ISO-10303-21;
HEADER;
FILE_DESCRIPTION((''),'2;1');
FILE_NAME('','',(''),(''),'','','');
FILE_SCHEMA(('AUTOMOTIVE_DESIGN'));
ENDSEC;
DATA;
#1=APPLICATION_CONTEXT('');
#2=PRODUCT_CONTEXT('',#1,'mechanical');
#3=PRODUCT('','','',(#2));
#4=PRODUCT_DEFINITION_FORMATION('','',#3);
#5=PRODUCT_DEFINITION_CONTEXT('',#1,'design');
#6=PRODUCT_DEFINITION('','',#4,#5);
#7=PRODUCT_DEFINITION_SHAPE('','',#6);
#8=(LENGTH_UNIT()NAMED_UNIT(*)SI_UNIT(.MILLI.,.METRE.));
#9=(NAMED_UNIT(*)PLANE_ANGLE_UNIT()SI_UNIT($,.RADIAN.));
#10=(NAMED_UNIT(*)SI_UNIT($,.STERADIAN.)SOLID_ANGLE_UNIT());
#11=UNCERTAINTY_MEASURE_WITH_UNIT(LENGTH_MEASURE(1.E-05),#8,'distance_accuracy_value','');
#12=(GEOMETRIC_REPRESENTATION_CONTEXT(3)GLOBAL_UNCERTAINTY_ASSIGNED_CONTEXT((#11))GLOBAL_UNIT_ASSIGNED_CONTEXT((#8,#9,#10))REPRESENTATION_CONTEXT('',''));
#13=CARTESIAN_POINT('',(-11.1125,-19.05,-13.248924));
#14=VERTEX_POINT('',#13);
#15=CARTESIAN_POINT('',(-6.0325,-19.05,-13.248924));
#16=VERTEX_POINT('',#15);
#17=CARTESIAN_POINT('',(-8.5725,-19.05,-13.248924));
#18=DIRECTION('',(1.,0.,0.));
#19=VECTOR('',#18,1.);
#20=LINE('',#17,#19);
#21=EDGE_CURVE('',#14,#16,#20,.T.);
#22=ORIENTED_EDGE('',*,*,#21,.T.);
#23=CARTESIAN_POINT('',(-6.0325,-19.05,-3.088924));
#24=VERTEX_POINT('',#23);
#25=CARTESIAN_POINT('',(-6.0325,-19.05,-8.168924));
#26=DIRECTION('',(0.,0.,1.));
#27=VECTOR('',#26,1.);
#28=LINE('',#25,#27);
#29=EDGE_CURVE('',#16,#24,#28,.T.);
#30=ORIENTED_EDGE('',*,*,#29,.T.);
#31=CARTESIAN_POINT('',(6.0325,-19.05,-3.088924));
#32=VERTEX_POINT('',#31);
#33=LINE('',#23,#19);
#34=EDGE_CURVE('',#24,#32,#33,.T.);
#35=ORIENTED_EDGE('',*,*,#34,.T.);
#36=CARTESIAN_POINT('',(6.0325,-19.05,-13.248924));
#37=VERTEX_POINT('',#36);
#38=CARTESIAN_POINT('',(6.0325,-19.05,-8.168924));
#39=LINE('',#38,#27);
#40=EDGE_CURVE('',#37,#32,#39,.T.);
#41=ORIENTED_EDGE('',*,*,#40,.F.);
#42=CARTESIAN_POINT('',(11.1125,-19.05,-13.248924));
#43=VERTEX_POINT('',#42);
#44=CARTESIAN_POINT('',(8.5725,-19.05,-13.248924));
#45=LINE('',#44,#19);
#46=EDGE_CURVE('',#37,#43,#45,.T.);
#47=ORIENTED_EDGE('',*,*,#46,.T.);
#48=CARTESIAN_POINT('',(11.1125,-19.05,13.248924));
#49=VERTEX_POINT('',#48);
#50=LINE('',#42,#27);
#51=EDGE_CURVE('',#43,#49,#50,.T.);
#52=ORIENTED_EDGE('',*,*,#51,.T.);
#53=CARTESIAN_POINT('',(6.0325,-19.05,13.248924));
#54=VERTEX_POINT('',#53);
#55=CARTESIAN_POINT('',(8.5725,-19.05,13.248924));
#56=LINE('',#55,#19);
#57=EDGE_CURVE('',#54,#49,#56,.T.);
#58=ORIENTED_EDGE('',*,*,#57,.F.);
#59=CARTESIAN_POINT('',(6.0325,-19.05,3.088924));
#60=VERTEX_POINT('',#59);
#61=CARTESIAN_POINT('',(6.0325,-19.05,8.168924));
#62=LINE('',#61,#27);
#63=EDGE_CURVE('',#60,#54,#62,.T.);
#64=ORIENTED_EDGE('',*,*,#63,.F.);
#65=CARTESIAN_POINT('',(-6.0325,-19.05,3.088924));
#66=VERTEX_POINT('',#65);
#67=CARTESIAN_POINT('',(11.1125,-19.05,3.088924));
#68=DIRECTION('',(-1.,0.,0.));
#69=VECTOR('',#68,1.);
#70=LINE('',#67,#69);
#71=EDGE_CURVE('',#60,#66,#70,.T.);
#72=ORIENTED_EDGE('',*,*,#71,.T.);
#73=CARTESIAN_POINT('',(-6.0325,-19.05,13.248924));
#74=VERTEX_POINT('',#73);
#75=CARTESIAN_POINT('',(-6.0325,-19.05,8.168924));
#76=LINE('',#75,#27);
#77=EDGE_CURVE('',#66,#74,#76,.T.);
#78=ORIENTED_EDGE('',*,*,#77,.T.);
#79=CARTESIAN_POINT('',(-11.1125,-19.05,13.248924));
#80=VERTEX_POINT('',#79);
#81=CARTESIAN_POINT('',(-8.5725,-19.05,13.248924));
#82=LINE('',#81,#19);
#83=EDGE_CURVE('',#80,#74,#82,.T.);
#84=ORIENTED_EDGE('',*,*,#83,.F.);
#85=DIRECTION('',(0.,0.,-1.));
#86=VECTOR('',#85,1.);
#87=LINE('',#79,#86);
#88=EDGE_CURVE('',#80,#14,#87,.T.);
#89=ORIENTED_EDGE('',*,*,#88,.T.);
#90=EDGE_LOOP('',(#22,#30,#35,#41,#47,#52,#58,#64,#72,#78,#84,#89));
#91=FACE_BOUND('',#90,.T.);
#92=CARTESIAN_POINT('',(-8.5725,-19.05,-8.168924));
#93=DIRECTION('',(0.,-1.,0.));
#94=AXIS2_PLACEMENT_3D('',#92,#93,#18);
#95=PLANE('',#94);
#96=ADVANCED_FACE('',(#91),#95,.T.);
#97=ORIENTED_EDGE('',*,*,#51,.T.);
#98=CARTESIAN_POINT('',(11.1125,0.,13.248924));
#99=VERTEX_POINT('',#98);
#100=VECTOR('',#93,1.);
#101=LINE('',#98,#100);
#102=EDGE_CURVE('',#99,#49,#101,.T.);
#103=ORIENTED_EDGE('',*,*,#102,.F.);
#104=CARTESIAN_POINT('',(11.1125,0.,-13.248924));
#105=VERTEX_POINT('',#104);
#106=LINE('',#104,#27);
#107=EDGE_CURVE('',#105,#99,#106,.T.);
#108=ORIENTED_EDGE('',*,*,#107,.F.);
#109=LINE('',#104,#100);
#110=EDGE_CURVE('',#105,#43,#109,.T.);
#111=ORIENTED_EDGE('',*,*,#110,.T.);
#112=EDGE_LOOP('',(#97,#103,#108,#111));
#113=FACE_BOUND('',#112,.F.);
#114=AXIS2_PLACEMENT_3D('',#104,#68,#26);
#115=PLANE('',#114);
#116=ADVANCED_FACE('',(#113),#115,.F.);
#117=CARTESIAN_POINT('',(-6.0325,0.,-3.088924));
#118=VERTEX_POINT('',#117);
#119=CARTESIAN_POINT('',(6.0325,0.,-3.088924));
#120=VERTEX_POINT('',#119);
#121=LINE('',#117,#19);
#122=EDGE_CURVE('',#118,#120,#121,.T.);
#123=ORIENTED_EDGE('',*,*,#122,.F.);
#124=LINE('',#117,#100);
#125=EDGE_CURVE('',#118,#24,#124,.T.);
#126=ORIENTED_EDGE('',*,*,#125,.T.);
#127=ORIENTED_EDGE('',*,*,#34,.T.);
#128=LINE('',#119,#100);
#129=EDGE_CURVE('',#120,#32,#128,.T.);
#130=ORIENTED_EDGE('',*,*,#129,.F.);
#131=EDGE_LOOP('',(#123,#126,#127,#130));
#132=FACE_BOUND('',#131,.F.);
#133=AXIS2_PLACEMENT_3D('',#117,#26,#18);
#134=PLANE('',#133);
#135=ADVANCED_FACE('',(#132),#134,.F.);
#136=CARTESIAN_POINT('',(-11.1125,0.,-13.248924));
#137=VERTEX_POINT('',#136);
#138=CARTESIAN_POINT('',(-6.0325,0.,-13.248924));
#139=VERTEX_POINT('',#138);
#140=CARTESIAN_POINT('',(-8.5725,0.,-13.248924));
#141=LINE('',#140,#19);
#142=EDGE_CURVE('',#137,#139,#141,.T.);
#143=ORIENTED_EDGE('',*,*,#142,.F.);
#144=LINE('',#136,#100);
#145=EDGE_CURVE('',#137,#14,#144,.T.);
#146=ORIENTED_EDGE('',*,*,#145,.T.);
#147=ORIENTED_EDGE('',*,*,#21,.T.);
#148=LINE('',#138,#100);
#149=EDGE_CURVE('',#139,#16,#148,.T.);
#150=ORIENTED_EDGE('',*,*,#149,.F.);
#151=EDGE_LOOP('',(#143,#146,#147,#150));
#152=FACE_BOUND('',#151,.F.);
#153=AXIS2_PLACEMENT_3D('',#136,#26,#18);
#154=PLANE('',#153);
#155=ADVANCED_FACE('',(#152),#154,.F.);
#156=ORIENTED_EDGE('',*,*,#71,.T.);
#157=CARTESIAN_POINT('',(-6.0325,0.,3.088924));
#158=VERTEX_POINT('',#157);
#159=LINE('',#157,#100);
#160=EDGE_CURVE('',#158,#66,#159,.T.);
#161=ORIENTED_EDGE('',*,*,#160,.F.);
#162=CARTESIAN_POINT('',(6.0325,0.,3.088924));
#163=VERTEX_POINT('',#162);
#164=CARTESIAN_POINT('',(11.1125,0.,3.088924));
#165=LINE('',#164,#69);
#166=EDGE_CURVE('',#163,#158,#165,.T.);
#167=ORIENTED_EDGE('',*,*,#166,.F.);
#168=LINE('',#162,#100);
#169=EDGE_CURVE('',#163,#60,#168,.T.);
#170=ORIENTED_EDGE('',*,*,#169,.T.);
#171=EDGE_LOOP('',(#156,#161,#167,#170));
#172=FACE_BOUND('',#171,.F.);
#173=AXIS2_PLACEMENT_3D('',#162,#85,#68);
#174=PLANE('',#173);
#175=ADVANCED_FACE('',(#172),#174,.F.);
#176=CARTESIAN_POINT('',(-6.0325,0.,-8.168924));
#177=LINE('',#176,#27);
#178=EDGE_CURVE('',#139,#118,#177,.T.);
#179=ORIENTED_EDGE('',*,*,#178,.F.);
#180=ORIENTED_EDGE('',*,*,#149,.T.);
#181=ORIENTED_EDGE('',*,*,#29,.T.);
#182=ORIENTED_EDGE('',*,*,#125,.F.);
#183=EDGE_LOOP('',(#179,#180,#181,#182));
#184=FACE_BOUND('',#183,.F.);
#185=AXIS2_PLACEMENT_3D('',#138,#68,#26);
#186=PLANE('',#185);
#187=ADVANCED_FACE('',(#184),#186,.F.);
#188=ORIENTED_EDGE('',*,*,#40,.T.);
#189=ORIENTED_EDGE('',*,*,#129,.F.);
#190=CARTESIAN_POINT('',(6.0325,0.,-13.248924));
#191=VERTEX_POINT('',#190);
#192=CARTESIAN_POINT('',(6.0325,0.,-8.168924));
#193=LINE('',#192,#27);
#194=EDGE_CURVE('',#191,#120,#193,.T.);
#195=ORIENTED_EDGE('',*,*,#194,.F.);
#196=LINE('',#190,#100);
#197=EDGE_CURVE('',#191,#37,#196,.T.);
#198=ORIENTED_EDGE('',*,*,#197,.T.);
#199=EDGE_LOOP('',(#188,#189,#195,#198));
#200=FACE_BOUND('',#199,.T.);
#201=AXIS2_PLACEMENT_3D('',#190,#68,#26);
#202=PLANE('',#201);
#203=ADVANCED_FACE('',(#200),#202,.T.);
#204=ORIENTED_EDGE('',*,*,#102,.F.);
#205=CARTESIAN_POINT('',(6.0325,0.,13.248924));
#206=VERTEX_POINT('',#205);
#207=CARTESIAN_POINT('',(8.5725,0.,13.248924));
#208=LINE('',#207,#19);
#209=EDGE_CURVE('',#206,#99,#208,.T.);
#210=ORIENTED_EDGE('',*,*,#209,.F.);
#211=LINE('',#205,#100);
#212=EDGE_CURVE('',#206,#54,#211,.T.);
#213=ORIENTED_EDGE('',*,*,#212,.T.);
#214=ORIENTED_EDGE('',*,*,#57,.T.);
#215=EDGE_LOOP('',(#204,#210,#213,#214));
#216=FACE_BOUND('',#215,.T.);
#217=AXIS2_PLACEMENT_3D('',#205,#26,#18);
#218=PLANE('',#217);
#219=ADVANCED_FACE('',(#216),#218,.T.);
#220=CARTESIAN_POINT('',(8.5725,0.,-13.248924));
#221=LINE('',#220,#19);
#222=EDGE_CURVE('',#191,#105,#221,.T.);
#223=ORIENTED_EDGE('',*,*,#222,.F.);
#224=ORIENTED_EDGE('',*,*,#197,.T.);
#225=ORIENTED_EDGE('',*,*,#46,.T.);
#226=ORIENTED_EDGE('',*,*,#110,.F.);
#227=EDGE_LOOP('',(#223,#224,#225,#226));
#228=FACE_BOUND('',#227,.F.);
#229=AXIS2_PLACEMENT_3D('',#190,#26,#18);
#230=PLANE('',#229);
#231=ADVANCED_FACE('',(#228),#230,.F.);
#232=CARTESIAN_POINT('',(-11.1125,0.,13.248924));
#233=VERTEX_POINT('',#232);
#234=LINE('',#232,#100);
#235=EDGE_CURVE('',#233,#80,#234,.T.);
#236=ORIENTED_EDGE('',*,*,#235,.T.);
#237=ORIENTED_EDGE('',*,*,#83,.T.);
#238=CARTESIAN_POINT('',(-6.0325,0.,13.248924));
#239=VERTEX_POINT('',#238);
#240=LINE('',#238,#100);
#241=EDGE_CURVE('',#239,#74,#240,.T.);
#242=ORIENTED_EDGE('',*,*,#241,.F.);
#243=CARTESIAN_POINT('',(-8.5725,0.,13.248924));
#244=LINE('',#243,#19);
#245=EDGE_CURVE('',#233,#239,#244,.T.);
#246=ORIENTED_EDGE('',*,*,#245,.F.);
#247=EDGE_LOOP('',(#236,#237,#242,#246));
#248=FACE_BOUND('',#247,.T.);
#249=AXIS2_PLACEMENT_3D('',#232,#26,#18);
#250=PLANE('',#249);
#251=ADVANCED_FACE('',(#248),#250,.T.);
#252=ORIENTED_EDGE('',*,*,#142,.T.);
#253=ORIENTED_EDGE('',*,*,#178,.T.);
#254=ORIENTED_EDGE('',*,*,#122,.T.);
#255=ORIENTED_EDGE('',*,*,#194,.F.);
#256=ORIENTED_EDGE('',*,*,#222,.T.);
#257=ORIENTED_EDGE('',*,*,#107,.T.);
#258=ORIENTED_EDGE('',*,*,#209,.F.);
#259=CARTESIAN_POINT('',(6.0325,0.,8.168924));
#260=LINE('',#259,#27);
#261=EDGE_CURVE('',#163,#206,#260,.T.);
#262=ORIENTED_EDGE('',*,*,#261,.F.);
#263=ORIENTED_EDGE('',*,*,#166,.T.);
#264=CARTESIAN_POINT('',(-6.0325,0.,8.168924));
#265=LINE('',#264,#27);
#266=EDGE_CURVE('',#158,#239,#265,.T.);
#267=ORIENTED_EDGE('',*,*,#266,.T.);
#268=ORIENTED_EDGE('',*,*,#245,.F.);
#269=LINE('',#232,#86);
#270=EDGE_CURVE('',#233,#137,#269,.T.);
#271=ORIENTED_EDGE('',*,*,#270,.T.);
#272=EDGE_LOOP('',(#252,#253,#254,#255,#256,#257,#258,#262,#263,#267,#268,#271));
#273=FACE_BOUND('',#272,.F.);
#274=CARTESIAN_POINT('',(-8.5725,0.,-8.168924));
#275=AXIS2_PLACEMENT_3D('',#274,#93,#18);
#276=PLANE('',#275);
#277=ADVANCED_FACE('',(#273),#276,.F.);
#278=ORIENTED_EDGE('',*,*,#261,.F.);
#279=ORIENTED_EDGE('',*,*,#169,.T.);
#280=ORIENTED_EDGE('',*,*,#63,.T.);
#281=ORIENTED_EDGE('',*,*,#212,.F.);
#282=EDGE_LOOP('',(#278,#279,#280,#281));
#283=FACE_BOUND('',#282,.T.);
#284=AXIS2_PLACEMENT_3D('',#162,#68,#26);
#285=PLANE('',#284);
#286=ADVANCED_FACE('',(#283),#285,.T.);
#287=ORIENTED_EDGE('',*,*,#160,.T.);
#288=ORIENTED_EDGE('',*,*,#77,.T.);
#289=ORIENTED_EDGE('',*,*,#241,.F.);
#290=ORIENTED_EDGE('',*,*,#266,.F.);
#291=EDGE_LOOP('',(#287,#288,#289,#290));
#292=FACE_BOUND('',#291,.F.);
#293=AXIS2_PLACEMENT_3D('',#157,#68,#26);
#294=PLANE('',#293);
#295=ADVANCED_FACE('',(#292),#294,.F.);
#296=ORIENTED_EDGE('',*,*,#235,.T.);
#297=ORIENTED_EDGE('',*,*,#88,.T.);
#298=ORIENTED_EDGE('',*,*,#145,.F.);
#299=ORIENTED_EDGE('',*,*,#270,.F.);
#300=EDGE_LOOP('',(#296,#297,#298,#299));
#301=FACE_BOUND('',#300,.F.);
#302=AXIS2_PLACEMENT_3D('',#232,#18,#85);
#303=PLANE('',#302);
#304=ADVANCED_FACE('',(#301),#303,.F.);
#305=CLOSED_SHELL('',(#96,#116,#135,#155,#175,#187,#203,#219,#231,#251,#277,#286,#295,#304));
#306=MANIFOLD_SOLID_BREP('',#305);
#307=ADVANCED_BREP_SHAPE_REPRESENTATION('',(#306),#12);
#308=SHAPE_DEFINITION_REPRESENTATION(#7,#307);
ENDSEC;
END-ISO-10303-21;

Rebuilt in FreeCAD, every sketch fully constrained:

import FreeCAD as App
import Part
import Sketcher

V = App.Vector
Q = App.Units.Quantity

doc = App.newDocument("Part")
params = doc.addObject("Spreadsheet::Sheet", "Params")
for row, (alias, value) in enumerate([
    ("sketch1_width", "0.2 in"),
    ("sketch1_height", "0.4 in"),
    ("sketch1_width2", "0.475 in"),
    ("pad1_length", "0.75 in"),
], start=1):
    params.set(f"A{row}", alias)
    params.set(f"B{row}", "=" + value)
    params.setAlias(f"B{row}", alias)

body = doc.addObject("PartDesign::Body", "Body")

# Sketch on XZ plane
sketch1 = body.newObject("Sketcher::SketchObject", "Sketch")
sketch1.AttachmentSupport = (doc.getObject("XZ_Plane"), [""])
sketch1.MapMode = "FlatFace"
sketch1.addGeometry([
    Part.LineSegment(V(-11, -13, 0), V(-6, -13, 0)),  # 0
    Part.LineSegment(V(-6, -13, 0), V(-6, -3, 0)),  # 1
    Part.LineSegment(V(-6, -3, 0), V(6, -3, 0)),  # 2
    Part.LineSegment(V(6, -3, 0), V(6, -13, 0)),  # 3
    Part.LineSegment(V(6, -13, 0), V(11, -13, 0)),  # 4
    Part.LineSegment(V(11, -13, 0), V(11, 13, 0)),  # 5
    Part.LineSegment(V(11, 13, 0), V(6, 13, 0)),  # 6
    Part.LineSegment(V(6, 13, 0), V(6, 3, 0)),  # 7
    Part.LineSegment(V(6, 3, 0), V(-6, 3, 0)),  # 8
    Part.LineSegment(V(-6, 3, 0), V(-6, 13, 0)),  # 9
    Part.LineSegment(V(-6, 13, 0), V(-11, 13, 0)),  # 10
    Part.LineSegment(V(-11, 13, 0), V(-11, -13, 0)),  # 11
], False)
sketch1.addConstraint([
    Sketcher.Constraint("Coincident", 0, 2, 1, 1),
    Sketcher.Constraint("Coincident", 1, 2, 2, 1),
    Sketcher.Constraint("Coincident", 2, 2, 3, 1),
    Sketcher.Constraint("Coincident", 3, 2, 4, 1),
    Sketcher.Constraint("Coincident", 4, 2, 5, 1),
    Sketcher.Constraint("Coincident", 5, 2, 6, 1),
    Sketcher.Constraint("Coincident", 6, 2, 7, 1),
    Sketcher.Constraint("Coincident", 7, 2, 8, 1),
    Sketcher.Constraint("Coincident", 8, 2, 9, 1),
    Sketcher.Constraint("Coincident", 9, 2, 10, 1),
    Sketcher.Constraint("Coincident", 10, 2, 11, 1),
    Sketcher.Constraint("Coincident", 11, 2, 0, 1),
    Sketcher.Constraint("Horizontal", 0),
    Sketcher.Constraint("Vertical", 1),
    Sketcher.Constraint("Horizontal", 2),
    Sketcher.Constraint("Vertical", 3),
    Sketcher.Constraint("Horizontal", 4),
    Sketcher.Constraint("Vertical", 5),
    Sketcher.Constraint("Horizontal", 6),
    Sketcher.Constraint("Vertical", 7),
    Sketcher.Constraint("Horizontal", 8),
    Sketcher.Constraint("Vertical", 9),
    Sketcher.Constraint("Horizontal", 10),
    Sketcher.Constraint("Vertical", 11),
    Sketcher.Constraint("Symmetric", 0, 2, 6, 2, -1, 1),
    Sketcher.Constraint("Symmetric", 2, 2, 8, 2, -1, 1),
    Sketcher.Constraint("Symmetric", 4, 2, 10, 2, -1, 1),
    Sketcher.Constraint("Symmetric", 0, 2, 3, 2, -2),
    Sketcher.Constraint("DistanceX", 0, 1, 0, 2, Q("0.2 in")),
    Sketcher.Constraint("DistanceY", 1, 1, 1, 2, Q("0.4 in")),
    Sketcher.Constraint("DistanceX", 2, 1, 2, 2, Q("0.475 in")),
    Sketcher.Constraint("DistanceY", 5, 1, 5, 2, Q("26.497848 mm")),
])
sketch1.setExpression("Constraints[28]", "Params.sketch1_width")
sketch1.setExpression("Constraints[29]", "Params.sketch1_height")
sketch1.setExpression("Constraints[30]", "Params.sketch1_width2")
pad1 = body.newObject("PartDesign::Pad", "Pad")
pad1.Profile = sketch1
pad1.setExpression("Length", "Params.pad1_length")

doc.recompute()
